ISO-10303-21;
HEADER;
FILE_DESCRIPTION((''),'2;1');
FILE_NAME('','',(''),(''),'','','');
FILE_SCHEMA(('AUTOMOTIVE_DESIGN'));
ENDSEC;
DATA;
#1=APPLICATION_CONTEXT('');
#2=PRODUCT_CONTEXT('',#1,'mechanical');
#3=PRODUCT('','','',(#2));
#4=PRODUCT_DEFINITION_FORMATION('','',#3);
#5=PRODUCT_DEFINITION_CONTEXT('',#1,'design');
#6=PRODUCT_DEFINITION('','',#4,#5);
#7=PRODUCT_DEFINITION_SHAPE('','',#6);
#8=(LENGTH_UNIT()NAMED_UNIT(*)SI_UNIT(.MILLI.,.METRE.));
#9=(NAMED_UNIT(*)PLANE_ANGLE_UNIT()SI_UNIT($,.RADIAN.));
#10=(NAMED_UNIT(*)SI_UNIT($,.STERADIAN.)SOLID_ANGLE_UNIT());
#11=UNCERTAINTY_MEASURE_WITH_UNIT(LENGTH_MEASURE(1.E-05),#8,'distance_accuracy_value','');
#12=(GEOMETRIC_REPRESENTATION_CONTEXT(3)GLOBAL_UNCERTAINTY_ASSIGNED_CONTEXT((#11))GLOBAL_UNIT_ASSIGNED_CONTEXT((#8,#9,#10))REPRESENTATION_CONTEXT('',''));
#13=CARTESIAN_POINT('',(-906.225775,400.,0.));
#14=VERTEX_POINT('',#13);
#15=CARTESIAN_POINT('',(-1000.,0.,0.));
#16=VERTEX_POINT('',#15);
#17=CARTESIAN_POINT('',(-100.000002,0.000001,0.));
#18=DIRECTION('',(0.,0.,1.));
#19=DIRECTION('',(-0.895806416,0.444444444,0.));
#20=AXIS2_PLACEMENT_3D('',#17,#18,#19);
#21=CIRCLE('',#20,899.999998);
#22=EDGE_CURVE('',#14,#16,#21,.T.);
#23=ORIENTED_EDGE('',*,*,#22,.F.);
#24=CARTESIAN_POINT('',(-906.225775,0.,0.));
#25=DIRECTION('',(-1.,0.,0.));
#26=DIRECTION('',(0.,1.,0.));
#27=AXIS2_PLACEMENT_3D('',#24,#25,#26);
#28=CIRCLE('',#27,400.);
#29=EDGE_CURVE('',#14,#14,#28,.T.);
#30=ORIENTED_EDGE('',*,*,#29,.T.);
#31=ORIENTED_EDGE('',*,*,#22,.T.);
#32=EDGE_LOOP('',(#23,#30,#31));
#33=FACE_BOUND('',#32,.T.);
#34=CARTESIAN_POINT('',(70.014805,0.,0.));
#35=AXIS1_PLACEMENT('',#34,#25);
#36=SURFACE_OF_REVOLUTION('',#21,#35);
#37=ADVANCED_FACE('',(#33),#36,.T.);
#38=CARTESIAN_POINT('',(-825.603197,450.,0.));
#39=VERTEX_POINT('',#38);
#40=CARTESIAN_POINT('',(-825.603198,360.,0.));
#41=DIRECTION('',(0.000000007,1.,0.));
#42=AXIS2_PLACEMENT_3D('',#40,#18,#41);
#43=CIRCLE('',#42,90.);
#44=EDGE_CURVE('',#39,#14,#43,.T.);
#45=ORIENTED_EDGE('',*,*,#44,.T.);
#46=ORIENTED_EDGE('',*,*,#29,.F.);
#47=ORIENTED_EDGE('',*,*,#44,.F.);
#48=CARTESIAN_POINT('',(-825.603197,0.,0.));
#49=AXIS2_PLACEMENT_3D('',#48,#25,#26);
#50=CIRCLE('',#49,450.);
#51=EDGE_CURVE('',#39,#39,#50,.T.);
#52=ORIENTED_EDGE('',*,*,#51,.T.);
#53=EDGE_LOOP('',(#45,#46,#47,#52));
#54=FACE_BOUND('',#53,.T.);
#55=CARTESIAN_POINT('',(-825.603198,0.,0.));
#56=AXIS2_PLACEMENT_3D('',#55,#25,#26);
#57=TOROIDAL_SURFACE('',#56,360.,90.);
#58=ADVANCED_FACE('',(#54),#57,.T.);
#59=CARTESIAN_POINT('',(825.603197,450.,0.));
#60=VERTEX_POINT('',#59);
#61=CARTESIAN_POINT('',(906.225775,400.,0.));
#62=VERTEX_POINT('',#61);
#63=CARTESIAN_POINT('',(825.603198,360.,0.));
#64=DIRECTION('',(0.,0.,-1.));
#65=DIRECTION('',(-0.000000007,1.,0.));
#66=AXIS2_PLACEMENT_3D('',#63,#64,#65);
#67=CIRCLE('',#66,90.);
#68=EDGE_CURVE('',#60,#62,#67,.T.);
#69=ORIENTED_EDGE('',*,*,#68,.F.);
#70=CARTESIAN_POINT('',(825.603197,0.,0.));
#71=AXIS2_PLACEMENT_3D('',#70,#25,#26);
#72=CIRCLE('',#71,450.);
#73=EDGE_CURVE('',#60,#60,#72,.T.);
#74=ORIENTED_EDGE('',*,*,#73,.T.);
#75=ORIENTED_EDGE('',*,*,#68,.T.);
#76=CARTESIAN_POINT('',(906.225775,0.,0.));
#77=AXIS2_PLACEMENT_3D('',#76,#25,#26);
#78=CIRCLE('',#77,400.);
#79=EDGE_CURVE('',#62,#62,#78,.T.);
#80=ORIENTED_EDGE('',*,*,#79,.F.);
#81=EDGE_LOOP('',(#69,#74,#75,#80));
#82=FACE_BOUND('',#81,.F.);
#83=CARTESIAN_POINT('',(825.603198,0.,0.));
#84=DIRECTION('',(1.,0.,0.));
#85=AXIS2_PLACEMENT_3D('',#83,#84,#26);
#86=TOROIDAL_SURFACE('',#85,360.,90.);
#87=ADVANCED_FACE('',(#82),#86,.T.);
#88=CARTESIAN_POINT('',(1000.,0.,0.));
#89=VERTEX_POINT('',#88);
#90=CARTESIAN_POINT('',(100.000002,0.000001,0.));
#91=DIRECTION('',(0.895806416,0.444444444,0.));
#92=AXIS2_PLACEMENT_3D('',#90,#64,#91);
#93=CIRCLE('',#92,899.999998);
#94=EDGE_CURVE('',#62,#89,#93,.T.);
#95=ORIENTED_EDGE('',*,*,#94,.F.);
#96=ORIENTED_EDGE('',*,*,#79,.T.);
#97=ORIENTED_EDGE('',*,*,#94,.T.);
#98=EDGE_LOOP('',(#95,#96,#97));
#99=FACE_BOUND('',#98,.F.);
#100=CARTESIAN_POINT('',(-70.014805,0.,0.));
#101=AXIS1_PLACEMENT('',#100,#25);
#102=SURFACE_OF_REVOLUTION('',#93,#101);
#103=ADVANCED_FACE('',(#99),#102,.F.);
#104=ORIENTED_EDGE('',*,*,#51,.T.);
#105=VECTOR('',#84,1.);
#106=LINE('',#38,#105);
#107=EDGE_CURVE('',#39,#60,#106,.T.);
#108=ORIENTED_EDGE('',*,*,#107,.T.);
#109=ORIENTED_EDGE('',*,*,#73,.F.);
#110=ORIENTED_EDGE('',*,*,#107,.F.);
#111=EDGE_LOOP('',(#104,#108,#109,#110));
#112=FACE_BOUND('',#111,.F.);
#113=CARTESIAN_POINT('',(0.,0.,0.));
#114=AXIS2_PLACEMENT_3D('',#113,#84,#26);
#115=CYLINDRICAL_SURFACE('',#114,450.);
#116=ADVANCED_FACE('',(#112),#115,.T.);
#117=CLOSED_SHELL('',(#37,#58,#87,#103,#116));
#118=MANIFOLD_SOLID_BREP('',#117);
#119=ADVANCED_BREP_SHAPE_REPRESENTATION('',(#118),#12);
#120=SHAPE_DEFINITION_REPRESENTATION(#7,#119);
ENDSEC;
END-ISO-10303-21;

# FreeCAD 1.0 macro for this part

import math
import FreeCAD as App
import Part
import Sketcher
Q = App.Units.Quantity

doc = App.newDocument("Part")
params = doc.addObject("Spreadsheet::Sheet", "Params")
for row, (alias, value) in enumerate([
    ("sketch1_radius", "90 mm"),
    ("sketch1_radius2", "899.999998 mm"),
    ("sketch1_width", "1000 mm"),
    ("sketch1_height", "450 mm"),
    ("revolution_angle", "360 deg"),
], start=1):
    params.set(f"A{row}", alias)
    params.set(f"B{row}", "=" + value)
    params.setAlias(f"B{row}", alias)

body = doc.addObject("PartDesign::Body", "Body")

# Sketch on XY plane
sketch1 = doc.addObject("Sketcher::SketchObject", "Sketch")
body.addObject(sketch1)
sketch1.AttachmentSupport = (doc.XY_Plane, [""])
sketch1.MapMode = "FlatFace"
sketch1.addGeometry(Part.LineSegment(App.Vector(0, 0, 0), App.Vector(0, 450, 0)), False)
sketch1.addGeometry(Part.LineSegment(App.Vector(0, 450, 0), App.Vector(-826, 450, 0)), False)
sketch1.addGeometry(Part.ArcOfCircle(Part.Circle(App.Vector(-826, 360, 0), App.Vector(0, 0, 1), 90), math.radians(90), math.radians(154)), False)
sketch1.addGeometry(Part.ArcOfCircle(Part.Circle(App.Vector(-100, 0, 0), App.Vector(0, 0, 1), 900), math.radians(154), math.radians(180)), False)
sketch1.addGeometry(Part.LineSegment(App.Vector(-1000, 0, 0), App.Vector(0, 0, 0)), False)
sketch1.addConstraint(Sketcher.Constraint("Coincident", 0, 2, 1, 1))
sketch1.addConstraint(Sketcher.Constraint("Tangent", 1, 2, 2, 1))
sketch1.addConstraint(Sketcher.Constraint("Tangent", 2, 2, 3, 1))
sketch1.addConstraint(Sketcher.Constraint("Coincident", 3, 2, 4, 1))
sketch1.addConstraint(Sketcher.Constraint("Coincident", 4, 2, 0, 1))
sketch1.addConstraint(Sketcher.Constraint("Vertical", 0))
sketch1.addConstraint(Sketcher.Constraint("Horizontal", 1))
sketch1.addConstraint(Sketcher.Constraint("Horizontal", 4))
sketch1.addConstraint(Sketcher.Constraint("Coincident", 4, 2, -1, 1))
sketch1.addConstraint(Sketcher.Constraint("PointOnObject", 3, 3, -1))
sketch1.addConstraint(Sketcher.Constraint("Radius", 2, Q("90 mm")))
sketch1.addConstraint(Sketcher.Constraint("Radius", 3, Q("899.999998 mm")))
sketch1.addConstraint(Sketcher.Constraint("DistanceX", 4, 1, 4, 2, Q("1000 mm")))
sketch1.addConstraint(Sketcher.Constraint("DistanceY", 0, 1, 0, 2, Q("450 mm")))
sketch1.setExpression("Constraints[10]", "Params.sketch1_radius")
sketch1.setExpression("Constraints[11]", "Params.sketch1_radius2")
sketch1.setExpression("Constraints[12]", "Params.sketch1_width")
sketch1.setExpression("Constraints[13]", "Params.sketch1_height")
revolution = doc.addObject("PartDesign::Revolution", "Revolution")
body.addObject(revolution)
revolution.Profile = sketch1
revolution.ReferenceAxis = (sketch1, ["H_Axis"])
revolution.setExpression("Angle", "Params.revolution_angle")
body2 = doc.addObject("PartDesign::Body", "Body001")
doc.recompute()

body2.BaseFeature = body
doc.recompute()

mirroring = doc.addObject("Part::Mirroring", "Mirroring")
mirroring.Source = body
mirroring.Base = App.Vector(0, 0, 0)
mirroring.Normal = App.Vector(1, 0, 0)
body3 = doc.addObject("PartDesign::Body", "Body002")
body3.BaseFeature = mirroring
boolean = doc.addObject("PartDesign::Boolean", "Boolean")
body2.addObject(boolean)
boolean.Type = "Fuse"
boolean.addObjects([body3])
doc.recompute()
mirroring.Visibility = False

doc.recompute()
